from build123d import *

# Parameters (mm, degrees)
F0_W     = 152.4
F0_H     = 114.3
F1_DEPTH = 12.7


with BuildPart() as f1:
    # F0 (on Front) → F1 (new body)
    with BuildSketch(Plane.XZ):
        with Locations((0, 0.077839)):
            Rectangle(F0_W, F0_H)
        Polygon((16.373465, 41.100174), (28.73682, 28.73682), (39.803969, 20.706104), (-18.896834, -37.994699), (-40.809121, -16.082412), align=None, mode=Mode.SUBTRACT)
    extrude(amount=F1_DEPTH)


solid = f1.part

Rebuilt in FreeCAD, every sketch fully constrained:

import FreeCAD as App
import Part
import Sketcher
from FreeCAD import Vector
Q = App.Units.Quantity


def add_polygon(sketch, points):
    """Adds a closed chain of lines whose ends are joined by coincident constraints."""
    first, n = sketch.GeometryCount, len(points)
    for a, b in zip(points, points[1:] + points[:1]):
        sketch.addGeometry(Part.LineSegment(App.Vector(*a, 0), App.Vector(*b, 0)), False)
    for i in range(n):
        sketch.addConstraint(Sketcher.Constraint("Coincident", first + i, 2, first + (i + 1) % n, 1))

doc = App.newDocument("Part")
body = doc.addObject("PartDesign::Body", "Body")

sketch1 = body.newObject("Sketcher::SketchObject", "Sketch")
sketch1.AttachmentSupport = (doc.getObject("XZ_Plane"), [""])
sketch1.MapMode = "FlatFace"
add_polygon(sketch1, [(-76.2, 57.227839), (-76.2, -57.072161), (76.2, -57.072161), (76.2, 57.227839)])
add_polygon(sketch1, [(-40.809121, -16.082412), (16.373465, 41.100174), (28.73682, 28.73682), (39.803969, 20.706104), (-18.896834, -37.994699)])
sketch1.addConstraint(Sketcher.Constraint("Vertical", 0))
sketch1.addConstraint(Sketcher.Constraint("Horizontal", 1))
sketch1.addConstraint(Sketcher.Constraint("Vertical", 2))
sketch1.addConstraint(Sketcher.Constraint("Horizontal", 3))
sketch1.addConstraint(Sketcher.Constraint("Perpendicular", 4, 5))
sketch1.addConstraint(Sketcher.Constraint("Perpendicular", 5, 7))
sketch1.addConstraint(Sketcher.Constraint("Perpendicular", 7, 8))
sketch1.addConstraint(Sketcher.Constraint("DistanceX", 1, 1, 1, 2, Q("6 in")))
sketch1.addConstraint(Sketcher.Constraint("DistanceY", 0, 2, 0, 1, Q("4.5 in")))
sketch1.addConstraint(Sketcher.Constraint("DistanceX", 0, 2, -1, 1, Q("3 in")))
sketch1.addConstraint(Sketcher.Constraint("Angle", 4, Q("45 deg")))
sketch1.addConstraint(Sketcher.Constraint("DistanceY", 7, 2, -1, 1, Q("37.994699 mm")))
sketch1.addConstraint(Sketcher.Constraint("DistanceX", 7, 2, 4, 2, Q("35.270299 mm")))
sketch1.addConstraint(Sketcher.Constraint("Distance", 4, Q("80.868389 mm")))
sketch1.addConstraint(Sketcher.Constraint("Distance", 6, Q("13.67385 mm")))
sketch1.addConstraint(Sketcher.Constraint("Distance", 7, Q("83.015472 mm")))
sketch1.addConstraint(Sketcher.Constraint("DistanceY", 0, 2, -1, 1, Q("57.072161 mm")))
sketch1.addConstraint(Sketcher.Constraint("DistanceX", -1, 1, 5, 2, Q("28.73682 mm")))
pad1 = body.newObject("PartDesign::Pad", "Pad")
pad1.Profile = sketch1
pad1.Length = Q("0.5 in")

doc.recompute()
